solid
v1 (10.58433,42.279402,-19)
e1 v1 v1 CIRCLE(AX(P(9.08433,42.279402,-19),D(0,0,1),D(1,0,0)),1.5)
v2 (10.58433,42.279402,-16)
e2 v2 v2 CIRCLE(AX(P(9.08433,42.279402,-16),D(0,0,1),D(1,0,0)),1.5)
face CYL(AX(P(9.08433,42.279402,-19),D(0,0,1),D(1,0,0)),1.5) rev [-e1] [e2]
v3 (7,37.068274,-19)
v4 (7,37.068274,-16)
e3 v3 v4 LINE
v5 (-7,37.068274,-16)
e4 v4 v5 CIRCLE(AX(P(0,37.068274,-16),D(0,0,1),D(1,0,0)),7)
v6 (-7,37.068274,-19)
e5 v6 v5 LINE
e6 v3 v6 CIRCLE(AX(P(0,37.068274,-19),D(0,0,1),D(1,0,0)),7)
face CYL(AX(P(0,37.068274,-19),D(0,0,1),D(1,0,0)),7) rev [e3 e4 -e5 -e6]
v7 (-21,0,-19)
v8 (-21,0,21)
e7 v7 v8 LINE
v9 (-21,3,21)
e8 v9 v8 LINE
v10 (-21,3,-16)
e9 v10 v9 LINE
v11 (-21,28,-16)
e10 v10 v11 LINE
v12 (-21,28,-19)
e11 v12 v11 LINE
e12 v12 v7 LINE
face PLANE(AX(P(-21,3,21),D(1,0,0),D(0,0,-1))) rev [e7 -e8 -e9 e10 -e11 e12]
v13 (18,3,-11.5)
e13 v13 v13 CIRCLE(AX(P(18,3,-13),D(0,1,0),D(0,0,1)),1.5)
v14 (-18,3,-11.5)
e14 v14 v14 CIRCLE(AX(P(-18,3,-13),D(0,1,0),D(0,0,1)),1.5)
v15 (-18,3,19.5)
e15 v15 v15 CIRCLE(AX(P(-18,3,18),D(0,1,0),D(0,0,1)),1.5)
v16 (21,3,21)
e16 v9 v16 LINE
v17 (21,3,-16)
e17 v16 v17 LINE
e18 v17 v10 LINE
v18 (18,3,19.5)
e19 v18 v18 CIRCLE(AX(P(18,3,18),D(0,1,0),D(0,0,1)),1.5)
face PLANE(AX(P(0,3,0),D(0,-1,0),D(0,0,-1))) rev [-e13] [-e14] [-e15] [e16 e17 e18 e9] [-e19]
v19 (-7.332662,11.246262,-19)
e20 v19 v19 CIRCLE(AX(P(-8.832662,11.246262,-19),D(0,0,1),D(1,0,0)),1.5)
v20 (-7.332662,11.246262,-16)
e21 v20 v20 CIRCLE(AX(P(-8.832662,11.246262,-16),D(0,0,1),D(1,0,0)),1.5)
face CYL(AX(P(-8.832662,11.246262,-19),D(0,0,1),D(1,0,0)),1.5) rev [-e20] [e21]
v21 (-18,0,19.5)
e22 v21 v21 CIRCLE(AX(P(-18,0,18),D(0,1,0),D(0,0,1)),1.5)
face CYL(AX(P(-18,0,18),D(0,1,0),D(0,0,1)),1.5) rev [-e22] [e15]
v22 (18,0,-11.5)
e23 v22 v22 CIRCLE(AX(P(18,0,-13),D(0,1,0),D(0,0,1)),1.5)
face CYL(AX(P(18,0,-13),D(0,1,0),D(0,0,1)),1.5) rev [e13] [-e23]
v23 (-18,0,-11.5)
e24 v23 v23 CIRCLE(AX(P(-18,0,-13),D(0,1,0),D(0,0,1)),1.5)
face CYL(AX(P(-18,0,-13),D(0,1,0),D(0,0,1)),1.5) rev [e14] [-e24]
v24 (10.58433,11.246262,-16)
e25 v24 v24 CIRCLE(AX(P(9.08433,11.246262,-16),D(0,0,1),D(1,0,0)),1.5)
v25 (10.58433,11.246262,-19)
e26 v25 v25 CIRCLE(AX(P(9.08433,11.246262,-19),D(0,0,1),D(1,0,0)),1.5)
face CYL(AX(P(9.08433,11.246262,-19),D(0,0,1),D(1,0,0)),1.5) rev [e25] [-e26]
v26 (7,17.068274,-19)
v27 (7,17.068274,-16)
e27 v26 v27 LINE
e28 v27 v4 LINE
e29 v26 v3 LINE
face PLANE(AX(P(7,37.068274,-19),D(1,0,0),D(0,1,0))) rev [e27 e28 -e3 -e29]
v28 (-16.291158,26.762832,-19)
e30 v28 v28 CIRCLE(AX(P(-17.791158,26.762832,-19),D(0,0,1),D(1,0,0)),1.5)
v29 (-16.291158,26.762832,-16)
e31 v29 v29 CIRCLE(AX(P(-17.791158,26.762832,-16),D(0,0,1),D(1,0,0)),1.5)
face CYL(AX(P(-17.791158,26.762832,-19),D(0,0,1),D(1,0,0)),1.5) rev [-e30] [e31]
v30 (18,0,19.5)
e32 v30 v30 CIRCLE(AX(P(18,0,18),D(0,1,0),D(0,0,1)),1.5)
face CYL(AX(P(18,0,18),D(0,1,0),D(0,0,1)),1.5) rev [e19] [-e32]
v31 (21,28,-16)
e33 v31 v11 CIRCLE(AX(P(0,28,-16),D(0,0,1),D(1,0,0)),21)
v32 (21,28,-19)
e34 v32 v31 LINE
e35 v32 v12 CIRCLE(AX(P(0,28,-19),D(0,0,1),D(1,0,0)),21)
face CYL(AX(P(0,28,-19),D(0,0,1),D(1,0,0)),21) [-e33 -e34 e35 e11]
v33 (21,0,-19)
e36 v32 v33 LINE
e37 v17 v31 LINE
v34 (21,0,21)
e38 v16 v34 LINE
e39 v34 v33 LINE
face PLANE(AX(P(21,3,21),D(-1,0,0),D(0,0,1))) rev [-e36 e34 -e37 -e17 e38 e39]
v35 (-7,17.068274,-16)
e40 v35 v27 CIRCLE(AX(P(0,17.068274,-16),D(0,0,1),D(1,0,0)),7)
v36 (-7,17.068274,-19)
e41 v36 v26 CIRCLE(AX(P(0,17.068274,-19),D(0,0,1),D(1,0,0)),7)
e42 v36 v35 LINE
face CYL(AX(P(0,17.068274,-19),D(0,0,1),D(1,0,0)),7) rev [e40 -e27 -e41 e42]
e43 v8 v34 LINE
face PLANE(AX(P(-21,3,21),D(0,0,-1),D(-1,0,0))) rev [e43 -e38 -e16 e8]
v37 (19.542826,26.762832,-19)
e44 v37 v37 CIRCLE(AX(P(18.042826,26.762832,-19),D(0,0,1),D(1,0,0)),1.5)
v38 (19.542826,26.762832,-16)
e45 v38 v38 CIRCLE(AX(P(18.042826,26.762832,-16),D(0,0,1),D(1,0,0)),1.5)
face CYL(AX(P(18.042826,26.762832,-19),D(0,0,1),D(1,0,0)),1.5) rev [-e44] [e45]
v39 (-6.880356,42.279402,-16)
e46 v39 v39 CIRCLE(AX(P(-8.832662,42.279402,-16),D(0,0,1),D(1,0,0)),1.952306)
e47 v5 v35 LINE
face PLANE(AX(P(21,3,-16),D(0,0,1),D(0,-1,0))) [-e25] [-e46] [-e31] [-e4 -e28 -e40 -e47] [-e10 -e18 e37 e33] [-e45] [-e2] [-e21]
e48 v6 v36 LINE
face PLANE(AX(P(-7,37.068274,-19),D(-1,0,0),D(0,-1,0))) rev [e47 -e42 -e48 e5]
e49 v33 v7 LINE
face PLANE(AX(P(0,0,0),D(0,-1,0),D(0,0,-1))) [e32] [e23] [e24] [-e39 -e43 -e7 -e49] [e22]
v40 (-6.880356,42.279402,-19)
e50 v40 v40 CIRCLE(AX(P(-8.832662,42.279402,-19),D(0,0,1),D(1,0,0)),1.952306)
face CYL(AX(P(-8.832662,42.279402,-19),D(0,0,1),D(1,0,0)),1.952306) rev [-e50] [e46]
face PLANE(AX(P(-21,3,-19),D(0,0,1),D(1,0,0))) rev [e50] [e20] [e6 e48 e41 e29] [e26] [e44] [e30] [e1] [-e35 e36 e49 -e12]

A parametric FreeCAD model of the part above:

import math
import FreeCAD as App
import Part
import Sketcher


def add_polygon(sketch, points):
    """Adds a closed chain of lines whose ends are joined by coincident constraints."""
    first, n = sketch.GeometryCount, len(points)
    for a, b in zip(points, points[1:] + points[:1]):
        sketch.addGeometry(Part.LineSegment(App.Vector(*a, 0), App.Vector(*b, 0)), False)
    for i in range(n):
        sketch.addConstraint(Sketcher.Constraint("Coincident", first + i, 2, first + (i + 1) % n, 1))

doc = App.newDocument("Part")
body = doc.addObject("PartDesign::Body", "Body")

sketch1 = body.newObject("Sketcher::SketchObject", "Sketch")
sketch1.AttachmentSupport = (doc.getObject("XZ_Plane"), [""])
sketch1.MapMode = "FlatFace"
add_polygon(sketch1, [(-21, -19), (-21, 21), (21, 21), (21, -19)])
sketch1.addConstraint([
    Sketcher.Constraint("Vertical", 0),
    Sketcher.Constraint("Horizontal", 1),
    Sketcher.Constraint("Vertical", 2),
    Sketcher.Constraint("Horizontal", 3),
    Sketcher.Constraint("DistanceX", 1, 1, 1, 2, 42.0),
    Sketcher.Constraint("DistanceY", 0, 1, 0, 2, 40.0),
    Sketcher.Constraint("DistanceX", 0, 2, -1, 1, 21.0),
    Sketcher.Constraint("DistanceY", -1, 1, 0, 2, 21.0),
])
pad1 = body.newObject("PartDesign::Pad", "Pad")
pad1.Profile = sketch1
pad1.Length = 3
pad1.Reversed = True

sketch2 = body.newObject("Sketcher::SketchObject", "Sketch001")
sketch2.AttachmentSupport = (doc.getObject("YZ_Plane"), [""])
sketch2.MapMode = "FlatFace"
sketch2.AttachmentOffset = App.Placement(App.Vector(0, 0, -21), App.Rotation())
add_polygon(sketch2, [(28, -19), (3, -19), (3, -16), (28, -16)])
sketch2.addConstraint([
    Sketcher.Constraint("Horizontal", 0),
    Sketcher.Constraint("Vertical", 1),
    Sketcher.Constraint("Horizontal", 2),
    Sketcher.Constraint("Vertical", 3),
    Sketcher.Constraint("DistanceX", 0, 2, 0, 1, 25.0),
    Sketcher.Constraint("DistanceY", 1, 1, 1, 2, 3.0),
    Sketcher.Constraint("DistanceX", -1, 1, 0, 2, 3.0),
    Sketcher.Constraint("DistanceY", 0, 2, -1, 1, 19.0),
])
pad2 = body.newObject("PartDesign::Pad", "Pad001")
pad2.Profile = sketch2
pad2.Length = 42

sketch3 = body.newObject("Sketcher::SketchObject", "Sketch002")
sketch3.AttachmentSupport = (doc.getObject("XY_Plane"), [""])
sketch3.MapMode = "FlatFace"
sketch3.AttachmentOffset = App.Placement(App.Vector(0, 0, -16), App.Rotation())
sketch3.addGeometry(Part.Circle(App.Vector(0, 28, 0), App.Vector(0, 0, 1), 21), False)
sketch3.addConstraint([
    Sketcher.Constraint("PointOnObject", 0, 3, -2),
    Sketcher.Constraint("Diameter", 0, 42.0),
    Sketcher.Constraint("DistanceY", -1, 1, 0, 3, 28.0),
])
pad3 = body.newObject("PartDesign::Pad", "Pad002")
pad3.Profile = sketch3
pad3.Length = 3
pad3.Reversed = True

sketch4 = body.newObject("Sketcher::SketchObject", "Sketch003")
sketch4.AttachmentSupport = (doc.getObject("XY_Plane"), [""])
sketch4.MapMode = "FlatFace"
sketch4.AttachmentOffset = App.Placement(App.Vector(0, 0, -16), App.Rotation())
sketch4.addGeometry([
    Part.LineSegment(App.Vector(-7, 37.068274, 0), App.Vector(-7, 17.068274, 0)),
    Part.ArcOfCircle(Part.Circle(App.Vector(0, 17.068274, 0), App.Vector(0, 0, 1), 7), math.radians(180), math.radians(360)),
    Part.LineSegment(App.Vector(7, 17.068274, 0), App.Vector(7, 37.068274, 0)),
    Part.ArcOfCircle(Part.Circle(App.Vector(0, 37.068274, 0), App.Vector(0, 0, 1), 7), math.radians(0), math.radians(180)),
], False)
sketch4.addConstraint([
    Sketcher.Constraint("Tangent", 0, 2, 1, 1),
    Sketcher.Constraint("Tangent", 1, 2, 2, 1),
    Sketcher.Constraint("Tangent", 2, 2, 3, 1),
    Sketcher.Constraint("Tangent", 3, 2, 0, 1),
    Sketcher.Constraint("Vertical", 0),
    Sketcher.Constraint("Vertical", 2),
    Sketcher.Constraint("PointOnObject", 1, 3, -2),
    Sketcher.Constraint("Radius", 1, 7.0),
    Sketcher.Constraint("DistanceY", 0, 2, 0, 1, 20.0),
    Sketcher.Constraint("DistanceY", -1, 1, 1, 3, 17.068274),
])
pocket1 = body.newObject("PartDesign::Pocket", "Pocket")
pocket1.Profile = sketch4
pocket1.Length = 3

sketch5 = body.newObject("Sketcher::SketchObject", "Sketch004")
sketch5.AttachmentSupport = (doc.getObject("XY_Plane"), [""])
sketch5.MapMode = "FlatFace"
sketch5.AttachmentOffset = App.Placement(App.Vector(0, 0, -16), App.Rotation())
sketch5.addGeometry([
    Part.Circle(App.Vector(-8.832662, 42.279402, 0), App.Vector(0, 0, 1), 1.5),
    Part.Circle(App.Vector(-17.791158, 26.762832, 0), App.Vector(0, 0, 1), 1.5),
    Part.Circle(App.Vector(-8.832662, 11.246262, 0), App.Vector(0, 0, 1), 1.5),
    Part.Circle(App.Vector(9.08433, 11.246262, 0), App.Vector(0, 0, 1), 1.5),
    Part.Circle(App.Vector(18.042826, 26.762832, 0), App.Vector(0, 0, 1), 1.5),
    Part.Circle(App.Vector(9.08433, 42.279402, 0), App.Vector(0, 0, 1), 1.5),
], False)
sketch5.addConstraint([
    Sketcher.Constraint("Equal", 0, 1),
    Sketcher.Constraint("Equal", 1, 2),
    Sketcher.Constraint("Equal", 2, 3),
    Sketcher.Constraint("Equal", 3, 4),
    Sketcher.Constraint("Equal", 4, 5),
    Sketcher.Constraint("Horizontal", 2, 3, 3, 3),
    Sketcher.Constraint("Horizontal", 1, 3, 4, 3),
    Sketcher.Constraint("Horizontal", 0, 3, 5, 3),
    Sketcher.Constraint("Vertical", 0, 3, 2, 3),
    Sketcher.Constraint("Vertical", 3, 3, 5, 3),
    Sketcher.Constraint("Diameter", 0, 3.0),
    Sketcher.Constraint("DistanceX", 0, 3, -1, 1, 8.832662),
    Sketcher.Constraint("DistanceY", -1, 1, 2, 3, 11.246262),
    Sketcher.Constraint("DistanceX", -1, 1, 3, 3, 9.08433),
    Sketcher.Constraint("DistanceY", 1, 3, 0, 3, 15.51657),
    Sketcher.Constraint("DistanceY", 2, 3, 1, 3, 15.51657),
    Sketcher.Constraint("DistanceX", 1, 3, -1, 1, 17.791158),
    Sketcher.Constraint("DistanceX", -1, 1, 4, 3, 18.042826),
])
pocket2 = body.newObject("PartDesign::Pocket", "Pocket001")
pocket2.Profile = sketch5
pocket2.Length = 3

sketch6 = body.newObject("Sketcher::SketchObject", "Sketch005")
sketch6.AttachmentSupport = (doc.getObject("XY_Plane"), [""])
sketch6.MapMode = "FlatFace"
sketch6.AttachmentOffset = App.Placement(App.Vector(0, 0, -16), App.Rotation())
sketch6.addGeometry(Part.Circle(App.Vector(-8.832662, 42.279402, 0), App.Vector(0, 0, 1), 1.952306), False)
sketch6.addConstraint([
    Sketcher.Constraint("Diameter", 0, 3.904612),
    Sketcher.Constraint("DistanceX", 0, 3, -1, 1, 8.832662),
    Sketcher.Constraint("DistanceY", -1, 1, 0, 3, 42.279402),
])
pocket3 = body.newObject("PartDesign::Pocket", "Pocket002")
pocket3.Profile = sketch6
pocket3.Length = 3

sketch7 = body.newObject("Sketcher::SketchObject", "Sketch006")
sketch7.AttachmentSupport = (doc.getObject("XZ_Plane"), [""])
sketch7.MapMode = "FlatFace"
sketch7.AttachmentOffset = App.Placement(App.Vector(0, 0, -3), App.Rotation())
sketch7.addGeometry([
    Part.Circle(App.Vector(-18, -13, 0), App.Vector(0, 0, 1), 1.5),
    Part.Circle(App.Vector(18, -13, 0), App.Vector(0, 0, 1), 1.5),
    Part.Circle(App.Vector(-18, 18, 0), App.Vector(0, 0, 1), 1.5),
    Part.Circle(App.Vector(18, 18, 0), App.Vector(0, 0, 1), 1.5),
], False)
sketch7.addConstraint([
    Sketcher.Constraint("Equal", 0, 1),
    Sketcher.Constraint("Equal", 1, 2),
    Sketcher.Constraint("Equal", 2, 3),
    Sketcher.Constraint("Symmetric", 0, 3, 1, 3, -2),
    Sketcher.Constraint("Symmetric", 2, 3, 3, 3, -2),
    Sketcher.Constraint("Vertical", 0, 3, 2, 3),
    Sketcher.Constraint("Diameter", 0, 3.0),
    Sketcher.Constraint("DistanceX", 0, 3, -1, 1, 18.0),
    Sketcher.Constraint("DistanceY", 0, 3, -1, 1, 13.0),
    Sketcher.Constraint("DistanceY", -1, 1, 2, 3, 18.0),
])
pocket4 = body.newObject("PartDesign::Pocket", "Pocket003")
pocket4.Profile = sketch7
pocket4.Length = 3
pocket4.Reversed = True

doc.recompute()
